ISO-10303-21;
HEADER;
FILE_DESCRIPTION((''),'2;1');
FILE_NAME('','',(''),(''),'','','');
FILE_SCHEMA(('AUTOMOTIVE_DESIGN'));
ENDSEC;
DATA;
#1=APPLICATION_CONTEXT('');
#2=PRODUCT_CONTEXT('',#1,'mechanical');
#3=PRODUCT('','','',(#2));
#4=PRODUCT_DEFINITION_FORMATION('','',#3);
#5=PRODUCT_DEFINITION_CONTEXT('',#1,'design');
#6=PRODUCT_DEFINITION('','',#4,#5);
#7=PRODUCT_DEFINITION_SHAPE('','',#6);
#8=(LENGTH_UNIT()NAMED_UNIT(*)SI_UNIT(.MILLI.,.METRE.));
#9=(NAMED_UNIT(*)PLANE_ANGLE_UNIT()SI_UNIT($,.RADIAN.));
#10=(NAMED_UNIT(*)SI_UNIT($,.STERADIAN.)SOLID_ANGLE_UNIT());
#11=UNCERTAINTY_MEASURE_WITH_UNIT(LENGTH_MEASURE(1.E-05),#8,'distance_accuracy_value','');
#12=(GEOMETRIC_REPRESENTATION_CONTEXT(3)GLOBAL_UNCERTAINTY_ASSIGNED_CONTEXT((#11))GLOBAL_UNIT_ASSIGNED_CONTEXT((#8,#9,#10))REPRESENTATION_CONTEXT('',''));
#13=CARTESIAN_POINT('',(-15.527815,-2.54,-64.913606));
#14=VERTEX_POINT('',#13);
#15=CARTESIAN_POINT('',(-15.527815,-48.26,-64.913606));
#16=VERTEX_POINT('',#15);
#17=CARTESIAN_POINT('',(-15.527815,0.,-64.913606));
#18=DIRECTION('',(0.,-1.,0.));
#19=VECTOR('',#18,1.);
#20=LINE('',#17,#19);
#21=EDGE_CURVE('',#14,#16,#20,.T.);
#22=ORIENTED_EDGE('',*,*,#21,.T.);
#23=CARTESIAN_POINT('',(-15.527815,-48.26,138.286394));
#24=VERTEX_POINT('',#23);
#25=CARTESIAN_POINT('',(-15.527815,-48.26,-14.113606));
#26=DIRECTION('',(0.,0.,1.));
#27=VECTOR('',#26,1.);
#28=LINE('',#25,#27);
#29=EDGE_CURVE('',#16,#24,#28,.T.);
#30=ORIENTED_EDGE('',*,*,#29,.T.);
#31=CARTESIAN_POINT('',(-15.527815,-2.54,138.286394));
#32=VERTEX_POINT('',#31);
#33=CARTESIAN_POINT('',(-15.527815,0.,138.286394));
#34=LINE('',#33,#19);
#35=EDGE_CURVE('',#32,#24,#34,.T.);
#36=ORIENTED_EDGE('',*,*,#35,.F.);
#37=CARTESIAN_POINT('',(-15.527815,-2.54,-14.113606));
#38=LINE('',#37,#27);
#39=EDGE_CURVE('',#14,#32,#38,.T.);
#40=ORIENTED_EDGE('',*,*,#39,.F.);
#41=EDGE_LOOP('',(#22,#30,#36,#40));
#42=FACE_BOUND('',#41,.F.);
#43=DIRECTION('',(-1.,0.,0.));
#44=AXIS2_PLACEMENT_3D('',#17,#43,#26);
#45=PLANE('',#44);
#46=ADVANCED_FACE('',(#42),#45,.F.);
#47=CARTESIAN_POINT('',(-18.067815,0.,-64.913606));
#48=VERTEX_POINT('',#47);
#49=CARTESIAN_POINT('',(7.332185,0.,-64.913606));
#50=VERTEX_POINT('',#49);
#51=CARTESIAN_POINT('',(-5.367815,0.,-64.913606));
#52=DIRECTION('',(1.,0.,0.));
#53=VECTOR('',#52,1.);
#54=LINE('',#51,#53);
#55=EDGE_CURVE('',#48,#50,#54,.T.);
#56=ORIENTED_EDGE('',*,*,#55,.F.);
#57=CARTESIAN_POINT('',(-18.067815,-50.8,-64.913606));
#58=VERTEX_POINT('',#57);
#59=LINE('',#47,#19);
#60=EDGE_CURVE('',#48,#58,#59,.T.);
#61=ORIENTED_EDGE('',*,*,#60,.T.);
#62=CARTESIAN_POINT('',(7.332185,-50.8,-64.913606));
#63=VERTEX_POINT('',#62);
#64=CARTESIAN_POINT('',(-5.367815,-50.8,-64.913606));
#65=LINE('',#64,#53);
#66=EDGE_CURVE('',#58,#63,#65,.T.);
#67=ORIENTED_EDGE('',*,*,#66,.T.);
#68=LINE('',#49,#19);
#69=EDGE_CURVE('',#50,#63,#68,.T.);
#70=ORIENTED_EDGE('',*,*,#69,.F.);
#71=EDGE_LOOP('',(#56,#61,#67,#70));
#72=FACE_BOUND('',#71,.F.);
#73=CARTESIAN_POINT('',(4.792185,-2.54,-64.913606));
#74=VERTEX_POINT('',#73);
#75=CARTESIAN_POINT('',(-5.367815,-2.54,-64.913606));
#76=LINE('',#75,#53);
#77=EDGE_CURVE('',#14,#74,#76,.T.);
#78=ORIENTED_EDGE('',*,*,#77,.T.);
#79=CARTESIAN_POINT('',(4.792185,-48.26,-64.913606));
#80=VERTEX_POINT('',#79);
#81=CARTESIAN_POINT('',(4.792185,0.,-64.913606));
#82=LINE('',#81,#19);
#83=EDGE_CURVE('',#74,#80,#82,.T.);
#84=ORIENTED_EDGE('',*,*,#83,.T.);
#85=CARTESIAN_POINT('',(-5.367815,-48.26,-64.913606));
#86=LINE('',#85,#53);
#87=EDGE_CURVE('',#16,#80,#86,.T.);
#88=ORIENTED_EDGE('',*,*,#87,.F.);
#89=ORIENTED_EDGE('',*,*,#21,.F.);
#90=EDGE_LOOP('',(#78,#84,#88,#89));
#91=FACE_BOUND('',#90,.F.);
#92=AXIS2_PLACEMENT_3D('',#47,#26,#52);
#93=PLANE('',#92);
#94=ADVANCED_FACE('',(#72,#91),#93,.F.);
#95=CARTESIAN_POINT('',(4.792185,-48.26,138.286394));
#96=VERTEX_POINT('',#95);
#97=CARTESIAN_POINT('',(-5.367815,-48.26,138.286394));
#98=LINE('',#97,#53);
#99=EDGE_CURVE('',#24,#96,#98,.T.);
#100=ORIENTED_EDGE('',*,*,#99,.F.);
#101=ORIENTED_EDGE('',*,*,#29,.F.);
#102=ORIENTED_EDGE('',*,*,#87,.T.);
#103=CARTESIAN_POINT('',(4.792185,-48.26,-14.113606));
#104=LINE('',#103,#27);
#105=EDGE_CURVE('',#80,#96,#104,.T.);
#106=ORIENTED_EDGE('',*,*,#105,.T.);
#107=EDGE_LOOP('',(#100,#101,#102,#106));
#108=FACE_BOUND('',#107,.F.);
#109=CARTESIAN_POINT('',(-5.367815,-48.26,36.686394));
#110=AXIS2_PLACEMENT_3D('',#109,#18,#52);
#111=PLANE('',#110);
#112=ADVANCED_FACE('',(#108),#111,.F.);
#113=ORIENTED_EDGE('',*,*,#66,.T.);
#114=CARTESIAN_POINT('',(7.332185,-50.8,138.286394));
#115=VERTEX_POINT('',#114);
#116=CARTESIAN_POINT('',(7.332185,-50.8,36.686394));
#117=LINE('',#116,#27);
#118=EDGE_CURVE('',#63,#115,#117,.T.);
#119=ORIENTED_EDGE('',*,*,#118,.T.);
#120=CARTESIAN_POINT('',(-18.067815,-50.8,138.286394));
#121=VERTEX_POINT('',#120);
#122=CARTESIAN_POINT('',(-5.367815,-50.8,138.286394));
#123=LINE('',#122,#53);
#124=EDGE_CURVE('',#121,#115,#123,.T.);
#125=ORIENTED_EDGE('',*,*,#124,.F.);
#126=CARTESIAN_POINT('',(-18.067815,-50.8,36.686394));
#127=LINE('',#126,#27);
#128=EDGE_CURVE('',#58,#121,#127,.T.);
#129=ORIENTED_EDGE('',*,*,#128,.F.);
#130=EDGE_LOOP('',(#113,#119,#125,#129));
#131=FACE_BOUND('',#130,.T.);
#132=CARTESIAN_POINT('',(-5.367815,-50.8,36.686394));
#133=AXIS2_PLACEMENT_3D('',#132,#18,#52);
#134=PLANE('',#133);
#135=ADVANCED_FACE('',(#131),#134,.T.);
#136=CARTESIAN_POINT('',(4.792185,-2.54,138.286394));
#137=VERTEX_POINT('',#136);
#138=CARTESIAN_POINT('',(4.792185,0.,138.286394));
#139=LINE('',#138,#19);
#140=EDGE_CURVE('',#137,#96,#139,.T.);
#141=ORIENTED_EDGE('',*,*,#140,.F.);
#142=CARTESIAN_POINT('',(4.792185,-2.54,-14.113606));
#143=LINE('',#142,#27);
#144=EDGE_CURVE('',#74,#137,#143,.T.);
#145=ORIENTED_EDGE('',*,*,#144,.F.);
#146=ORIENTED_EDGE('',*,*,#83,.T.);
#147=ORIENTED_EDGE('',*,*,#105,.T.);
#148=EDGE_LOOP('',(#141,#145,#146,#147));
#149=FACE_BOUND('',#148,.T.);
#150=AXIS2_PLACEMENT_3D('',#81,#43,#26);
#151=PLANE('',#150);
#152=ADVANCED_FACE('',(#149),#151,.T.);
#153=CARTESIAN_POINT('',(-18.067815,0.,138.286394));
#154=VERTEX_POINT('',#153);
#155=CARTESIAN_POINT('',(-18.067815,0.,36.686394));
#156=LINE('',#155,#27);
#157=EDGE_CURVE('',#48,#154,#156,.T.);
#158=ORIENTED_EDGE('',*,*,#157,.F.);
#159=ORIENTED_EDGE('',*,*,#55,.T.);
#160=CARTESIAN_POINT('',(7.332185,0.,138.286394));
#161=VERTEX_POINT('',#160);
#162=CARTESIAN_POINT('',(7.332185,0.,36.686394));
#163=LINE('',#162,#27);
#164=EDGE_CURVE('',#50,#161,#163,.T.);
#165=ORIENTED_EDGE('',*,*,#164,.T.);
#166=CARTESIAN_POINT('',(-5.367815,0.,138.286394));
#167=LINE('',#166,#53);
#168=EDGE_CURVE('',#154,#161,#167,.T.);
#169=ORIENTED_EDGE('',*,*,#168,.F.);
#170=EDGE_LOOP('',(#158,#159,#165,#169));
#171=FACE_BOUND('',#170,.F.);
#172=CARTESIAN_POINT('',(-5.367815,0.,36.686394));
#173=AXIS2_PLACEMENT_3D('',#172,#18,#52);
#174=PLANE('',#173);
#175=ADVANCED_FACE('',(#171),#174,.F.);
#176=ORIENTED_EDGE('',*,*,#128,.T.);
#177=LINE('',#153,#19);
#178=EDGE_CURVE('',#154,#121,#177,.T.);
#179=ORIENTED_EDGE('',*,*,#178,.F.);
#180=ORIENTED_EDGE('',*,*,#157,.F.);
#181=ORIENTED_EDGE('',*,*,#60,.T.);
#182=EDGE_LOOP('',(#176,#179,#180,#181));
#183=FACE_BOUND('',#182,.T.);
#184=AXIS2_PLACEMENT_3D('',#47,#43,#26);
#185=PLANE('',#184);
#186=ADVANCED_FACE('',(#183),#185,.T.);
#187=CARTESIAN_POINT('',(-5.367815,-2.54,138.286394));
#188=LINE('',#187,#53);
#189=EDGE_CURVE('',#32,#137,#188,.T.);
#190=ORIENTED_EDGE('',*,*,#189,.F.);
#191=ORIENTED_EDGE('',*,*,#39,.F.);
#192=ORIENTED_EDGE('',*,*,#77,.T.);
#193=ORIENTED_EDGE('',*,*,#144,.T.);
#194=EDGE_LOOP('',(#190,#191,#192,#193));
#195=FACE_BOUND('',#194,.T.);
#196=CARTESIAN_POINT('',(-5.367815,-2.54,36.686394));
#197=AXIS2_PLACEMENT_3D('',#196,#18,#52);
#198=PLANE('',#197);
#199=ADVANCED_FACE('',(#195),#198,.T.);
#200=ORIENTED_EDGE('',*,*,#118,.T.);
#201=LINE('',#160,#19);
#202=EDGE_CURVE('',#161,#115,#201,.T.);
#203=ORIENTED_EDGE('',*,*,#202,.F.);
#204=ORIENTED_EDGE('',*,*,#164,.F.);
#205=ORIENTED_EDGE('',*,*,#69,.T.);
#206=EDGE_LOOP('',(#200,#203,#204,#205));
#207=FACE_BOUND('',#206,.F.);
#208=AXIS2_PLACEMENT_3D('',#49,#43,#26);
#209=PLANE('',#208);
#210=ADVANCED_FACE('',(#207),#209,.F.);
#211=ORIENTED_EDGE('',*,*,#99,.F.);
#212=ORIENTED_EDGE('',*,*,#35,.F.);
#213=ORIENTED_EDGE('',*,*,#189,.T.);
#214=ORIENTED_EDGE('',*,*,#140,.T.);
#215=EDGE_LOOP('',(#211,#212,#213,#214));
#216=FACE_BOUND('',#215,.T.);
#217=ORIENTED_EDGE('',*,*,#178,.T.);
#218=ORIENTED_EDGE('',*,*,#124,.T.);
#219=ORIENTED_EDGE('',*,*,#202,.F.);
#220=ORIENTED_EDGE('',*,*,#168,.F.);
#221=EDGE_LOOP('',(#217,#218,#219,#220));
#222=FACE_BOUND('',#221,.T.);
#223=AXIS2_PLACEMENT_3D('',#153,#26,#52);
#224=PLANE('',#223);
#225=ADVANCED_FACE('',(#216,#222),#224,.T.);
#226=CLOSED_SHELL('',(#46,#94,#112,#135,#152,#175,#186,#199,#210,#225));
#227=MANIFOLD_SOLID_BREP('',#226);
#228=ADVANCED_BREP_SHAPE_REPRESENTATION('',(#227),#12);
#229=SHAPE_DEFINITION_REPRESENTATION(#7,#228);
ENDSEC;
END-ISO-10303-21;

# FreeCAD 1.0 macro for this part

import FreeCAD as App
import Part
import Sketcher

V = App.Vector
Q = App.Units.Quantity


def faces_at(feature, points):
    """Names of the faces that lie closest to the given points."""
    faces = feature.Shape.Faces
    near = lambda p: min(range(len(faces)), key=lambda i: faces[i].distToShape(Part.Vertex(*p))[0])
    return sorted({f"Face{near(p) + 1}" for p in points})

doc = App.newDocument("Part")
body = doc.addObject("PartDesign::Body", "Body")

# Sketch on XZ plane
sketch1 = body.newObject("Sketcher::SketchObject", "Sketch")
sketch1.AttachmentSupport = (doc.getObject("XZ_Plane"), [""])
sketch1.MapMode = "FlatFace"
sketch1.addGeometry([
    Part.LineSegment(V(-18, 138, 0), V(-18, -65, 0)),
    Part.LineSegment(V(-18, -65, 0), V(7, -65, 0)),
    Part.LineSegment(V(7, -65, 0), V(7, 138, 0)),
    Part.LineSegment(V(7, 138, 0), V(-18, 138, 0)),
], False)
sketch1.addConstraint([
    Sketcher.Constraint("Coincident", 0, 2, 1, 1),
    Sketcher.Constraint("Coincident", 1, 2, 2, 1),
    Sketcher.Constraint("Coincident", 2, 2, 3, 1),
    Sketcher.Constraint("Coincident", 3, 2, 0, 1),
    Sketcher.Constraint("Vertical", 0),
    Sketcher.Constraint("Horizontal", 1),
    Sketcher.Constraint("Vertical", 2),
    Sketcher.Constraint("Horizontal", 3),
    Sketcher.Constraint("DistanceX", 1, 1, 1, 2, Q("1 in")),
    Sketcher.Constraint("DistanceY", 0, 2, 0, 1, Q("8 in")),
    Sketcher.Constraint("DistanceX", 0, 2, -1, 1, 18.067815),
    Sketcher.Constraint("DistanceY", 0, 2, -1, 1, 64.913606),
])
pad1 = body.newObject("PartDesign::Pad", "Pad")
pad1.Profile = sketch1
pad1.Length = Q("2 in")
doc.recompute()

thickness = body.newObject("PartDesign::Thickness", "Thickness")
thickness.Base = (pad1, faces_at(pad1, [(-5.368, -25.4, 138.286), (-5.368, -25.4, -64.914)]))
thickness.Value = Q("0.1 in")
thickness.Reversed = True
thickness.Join = "Arc"

doc.recompute()
